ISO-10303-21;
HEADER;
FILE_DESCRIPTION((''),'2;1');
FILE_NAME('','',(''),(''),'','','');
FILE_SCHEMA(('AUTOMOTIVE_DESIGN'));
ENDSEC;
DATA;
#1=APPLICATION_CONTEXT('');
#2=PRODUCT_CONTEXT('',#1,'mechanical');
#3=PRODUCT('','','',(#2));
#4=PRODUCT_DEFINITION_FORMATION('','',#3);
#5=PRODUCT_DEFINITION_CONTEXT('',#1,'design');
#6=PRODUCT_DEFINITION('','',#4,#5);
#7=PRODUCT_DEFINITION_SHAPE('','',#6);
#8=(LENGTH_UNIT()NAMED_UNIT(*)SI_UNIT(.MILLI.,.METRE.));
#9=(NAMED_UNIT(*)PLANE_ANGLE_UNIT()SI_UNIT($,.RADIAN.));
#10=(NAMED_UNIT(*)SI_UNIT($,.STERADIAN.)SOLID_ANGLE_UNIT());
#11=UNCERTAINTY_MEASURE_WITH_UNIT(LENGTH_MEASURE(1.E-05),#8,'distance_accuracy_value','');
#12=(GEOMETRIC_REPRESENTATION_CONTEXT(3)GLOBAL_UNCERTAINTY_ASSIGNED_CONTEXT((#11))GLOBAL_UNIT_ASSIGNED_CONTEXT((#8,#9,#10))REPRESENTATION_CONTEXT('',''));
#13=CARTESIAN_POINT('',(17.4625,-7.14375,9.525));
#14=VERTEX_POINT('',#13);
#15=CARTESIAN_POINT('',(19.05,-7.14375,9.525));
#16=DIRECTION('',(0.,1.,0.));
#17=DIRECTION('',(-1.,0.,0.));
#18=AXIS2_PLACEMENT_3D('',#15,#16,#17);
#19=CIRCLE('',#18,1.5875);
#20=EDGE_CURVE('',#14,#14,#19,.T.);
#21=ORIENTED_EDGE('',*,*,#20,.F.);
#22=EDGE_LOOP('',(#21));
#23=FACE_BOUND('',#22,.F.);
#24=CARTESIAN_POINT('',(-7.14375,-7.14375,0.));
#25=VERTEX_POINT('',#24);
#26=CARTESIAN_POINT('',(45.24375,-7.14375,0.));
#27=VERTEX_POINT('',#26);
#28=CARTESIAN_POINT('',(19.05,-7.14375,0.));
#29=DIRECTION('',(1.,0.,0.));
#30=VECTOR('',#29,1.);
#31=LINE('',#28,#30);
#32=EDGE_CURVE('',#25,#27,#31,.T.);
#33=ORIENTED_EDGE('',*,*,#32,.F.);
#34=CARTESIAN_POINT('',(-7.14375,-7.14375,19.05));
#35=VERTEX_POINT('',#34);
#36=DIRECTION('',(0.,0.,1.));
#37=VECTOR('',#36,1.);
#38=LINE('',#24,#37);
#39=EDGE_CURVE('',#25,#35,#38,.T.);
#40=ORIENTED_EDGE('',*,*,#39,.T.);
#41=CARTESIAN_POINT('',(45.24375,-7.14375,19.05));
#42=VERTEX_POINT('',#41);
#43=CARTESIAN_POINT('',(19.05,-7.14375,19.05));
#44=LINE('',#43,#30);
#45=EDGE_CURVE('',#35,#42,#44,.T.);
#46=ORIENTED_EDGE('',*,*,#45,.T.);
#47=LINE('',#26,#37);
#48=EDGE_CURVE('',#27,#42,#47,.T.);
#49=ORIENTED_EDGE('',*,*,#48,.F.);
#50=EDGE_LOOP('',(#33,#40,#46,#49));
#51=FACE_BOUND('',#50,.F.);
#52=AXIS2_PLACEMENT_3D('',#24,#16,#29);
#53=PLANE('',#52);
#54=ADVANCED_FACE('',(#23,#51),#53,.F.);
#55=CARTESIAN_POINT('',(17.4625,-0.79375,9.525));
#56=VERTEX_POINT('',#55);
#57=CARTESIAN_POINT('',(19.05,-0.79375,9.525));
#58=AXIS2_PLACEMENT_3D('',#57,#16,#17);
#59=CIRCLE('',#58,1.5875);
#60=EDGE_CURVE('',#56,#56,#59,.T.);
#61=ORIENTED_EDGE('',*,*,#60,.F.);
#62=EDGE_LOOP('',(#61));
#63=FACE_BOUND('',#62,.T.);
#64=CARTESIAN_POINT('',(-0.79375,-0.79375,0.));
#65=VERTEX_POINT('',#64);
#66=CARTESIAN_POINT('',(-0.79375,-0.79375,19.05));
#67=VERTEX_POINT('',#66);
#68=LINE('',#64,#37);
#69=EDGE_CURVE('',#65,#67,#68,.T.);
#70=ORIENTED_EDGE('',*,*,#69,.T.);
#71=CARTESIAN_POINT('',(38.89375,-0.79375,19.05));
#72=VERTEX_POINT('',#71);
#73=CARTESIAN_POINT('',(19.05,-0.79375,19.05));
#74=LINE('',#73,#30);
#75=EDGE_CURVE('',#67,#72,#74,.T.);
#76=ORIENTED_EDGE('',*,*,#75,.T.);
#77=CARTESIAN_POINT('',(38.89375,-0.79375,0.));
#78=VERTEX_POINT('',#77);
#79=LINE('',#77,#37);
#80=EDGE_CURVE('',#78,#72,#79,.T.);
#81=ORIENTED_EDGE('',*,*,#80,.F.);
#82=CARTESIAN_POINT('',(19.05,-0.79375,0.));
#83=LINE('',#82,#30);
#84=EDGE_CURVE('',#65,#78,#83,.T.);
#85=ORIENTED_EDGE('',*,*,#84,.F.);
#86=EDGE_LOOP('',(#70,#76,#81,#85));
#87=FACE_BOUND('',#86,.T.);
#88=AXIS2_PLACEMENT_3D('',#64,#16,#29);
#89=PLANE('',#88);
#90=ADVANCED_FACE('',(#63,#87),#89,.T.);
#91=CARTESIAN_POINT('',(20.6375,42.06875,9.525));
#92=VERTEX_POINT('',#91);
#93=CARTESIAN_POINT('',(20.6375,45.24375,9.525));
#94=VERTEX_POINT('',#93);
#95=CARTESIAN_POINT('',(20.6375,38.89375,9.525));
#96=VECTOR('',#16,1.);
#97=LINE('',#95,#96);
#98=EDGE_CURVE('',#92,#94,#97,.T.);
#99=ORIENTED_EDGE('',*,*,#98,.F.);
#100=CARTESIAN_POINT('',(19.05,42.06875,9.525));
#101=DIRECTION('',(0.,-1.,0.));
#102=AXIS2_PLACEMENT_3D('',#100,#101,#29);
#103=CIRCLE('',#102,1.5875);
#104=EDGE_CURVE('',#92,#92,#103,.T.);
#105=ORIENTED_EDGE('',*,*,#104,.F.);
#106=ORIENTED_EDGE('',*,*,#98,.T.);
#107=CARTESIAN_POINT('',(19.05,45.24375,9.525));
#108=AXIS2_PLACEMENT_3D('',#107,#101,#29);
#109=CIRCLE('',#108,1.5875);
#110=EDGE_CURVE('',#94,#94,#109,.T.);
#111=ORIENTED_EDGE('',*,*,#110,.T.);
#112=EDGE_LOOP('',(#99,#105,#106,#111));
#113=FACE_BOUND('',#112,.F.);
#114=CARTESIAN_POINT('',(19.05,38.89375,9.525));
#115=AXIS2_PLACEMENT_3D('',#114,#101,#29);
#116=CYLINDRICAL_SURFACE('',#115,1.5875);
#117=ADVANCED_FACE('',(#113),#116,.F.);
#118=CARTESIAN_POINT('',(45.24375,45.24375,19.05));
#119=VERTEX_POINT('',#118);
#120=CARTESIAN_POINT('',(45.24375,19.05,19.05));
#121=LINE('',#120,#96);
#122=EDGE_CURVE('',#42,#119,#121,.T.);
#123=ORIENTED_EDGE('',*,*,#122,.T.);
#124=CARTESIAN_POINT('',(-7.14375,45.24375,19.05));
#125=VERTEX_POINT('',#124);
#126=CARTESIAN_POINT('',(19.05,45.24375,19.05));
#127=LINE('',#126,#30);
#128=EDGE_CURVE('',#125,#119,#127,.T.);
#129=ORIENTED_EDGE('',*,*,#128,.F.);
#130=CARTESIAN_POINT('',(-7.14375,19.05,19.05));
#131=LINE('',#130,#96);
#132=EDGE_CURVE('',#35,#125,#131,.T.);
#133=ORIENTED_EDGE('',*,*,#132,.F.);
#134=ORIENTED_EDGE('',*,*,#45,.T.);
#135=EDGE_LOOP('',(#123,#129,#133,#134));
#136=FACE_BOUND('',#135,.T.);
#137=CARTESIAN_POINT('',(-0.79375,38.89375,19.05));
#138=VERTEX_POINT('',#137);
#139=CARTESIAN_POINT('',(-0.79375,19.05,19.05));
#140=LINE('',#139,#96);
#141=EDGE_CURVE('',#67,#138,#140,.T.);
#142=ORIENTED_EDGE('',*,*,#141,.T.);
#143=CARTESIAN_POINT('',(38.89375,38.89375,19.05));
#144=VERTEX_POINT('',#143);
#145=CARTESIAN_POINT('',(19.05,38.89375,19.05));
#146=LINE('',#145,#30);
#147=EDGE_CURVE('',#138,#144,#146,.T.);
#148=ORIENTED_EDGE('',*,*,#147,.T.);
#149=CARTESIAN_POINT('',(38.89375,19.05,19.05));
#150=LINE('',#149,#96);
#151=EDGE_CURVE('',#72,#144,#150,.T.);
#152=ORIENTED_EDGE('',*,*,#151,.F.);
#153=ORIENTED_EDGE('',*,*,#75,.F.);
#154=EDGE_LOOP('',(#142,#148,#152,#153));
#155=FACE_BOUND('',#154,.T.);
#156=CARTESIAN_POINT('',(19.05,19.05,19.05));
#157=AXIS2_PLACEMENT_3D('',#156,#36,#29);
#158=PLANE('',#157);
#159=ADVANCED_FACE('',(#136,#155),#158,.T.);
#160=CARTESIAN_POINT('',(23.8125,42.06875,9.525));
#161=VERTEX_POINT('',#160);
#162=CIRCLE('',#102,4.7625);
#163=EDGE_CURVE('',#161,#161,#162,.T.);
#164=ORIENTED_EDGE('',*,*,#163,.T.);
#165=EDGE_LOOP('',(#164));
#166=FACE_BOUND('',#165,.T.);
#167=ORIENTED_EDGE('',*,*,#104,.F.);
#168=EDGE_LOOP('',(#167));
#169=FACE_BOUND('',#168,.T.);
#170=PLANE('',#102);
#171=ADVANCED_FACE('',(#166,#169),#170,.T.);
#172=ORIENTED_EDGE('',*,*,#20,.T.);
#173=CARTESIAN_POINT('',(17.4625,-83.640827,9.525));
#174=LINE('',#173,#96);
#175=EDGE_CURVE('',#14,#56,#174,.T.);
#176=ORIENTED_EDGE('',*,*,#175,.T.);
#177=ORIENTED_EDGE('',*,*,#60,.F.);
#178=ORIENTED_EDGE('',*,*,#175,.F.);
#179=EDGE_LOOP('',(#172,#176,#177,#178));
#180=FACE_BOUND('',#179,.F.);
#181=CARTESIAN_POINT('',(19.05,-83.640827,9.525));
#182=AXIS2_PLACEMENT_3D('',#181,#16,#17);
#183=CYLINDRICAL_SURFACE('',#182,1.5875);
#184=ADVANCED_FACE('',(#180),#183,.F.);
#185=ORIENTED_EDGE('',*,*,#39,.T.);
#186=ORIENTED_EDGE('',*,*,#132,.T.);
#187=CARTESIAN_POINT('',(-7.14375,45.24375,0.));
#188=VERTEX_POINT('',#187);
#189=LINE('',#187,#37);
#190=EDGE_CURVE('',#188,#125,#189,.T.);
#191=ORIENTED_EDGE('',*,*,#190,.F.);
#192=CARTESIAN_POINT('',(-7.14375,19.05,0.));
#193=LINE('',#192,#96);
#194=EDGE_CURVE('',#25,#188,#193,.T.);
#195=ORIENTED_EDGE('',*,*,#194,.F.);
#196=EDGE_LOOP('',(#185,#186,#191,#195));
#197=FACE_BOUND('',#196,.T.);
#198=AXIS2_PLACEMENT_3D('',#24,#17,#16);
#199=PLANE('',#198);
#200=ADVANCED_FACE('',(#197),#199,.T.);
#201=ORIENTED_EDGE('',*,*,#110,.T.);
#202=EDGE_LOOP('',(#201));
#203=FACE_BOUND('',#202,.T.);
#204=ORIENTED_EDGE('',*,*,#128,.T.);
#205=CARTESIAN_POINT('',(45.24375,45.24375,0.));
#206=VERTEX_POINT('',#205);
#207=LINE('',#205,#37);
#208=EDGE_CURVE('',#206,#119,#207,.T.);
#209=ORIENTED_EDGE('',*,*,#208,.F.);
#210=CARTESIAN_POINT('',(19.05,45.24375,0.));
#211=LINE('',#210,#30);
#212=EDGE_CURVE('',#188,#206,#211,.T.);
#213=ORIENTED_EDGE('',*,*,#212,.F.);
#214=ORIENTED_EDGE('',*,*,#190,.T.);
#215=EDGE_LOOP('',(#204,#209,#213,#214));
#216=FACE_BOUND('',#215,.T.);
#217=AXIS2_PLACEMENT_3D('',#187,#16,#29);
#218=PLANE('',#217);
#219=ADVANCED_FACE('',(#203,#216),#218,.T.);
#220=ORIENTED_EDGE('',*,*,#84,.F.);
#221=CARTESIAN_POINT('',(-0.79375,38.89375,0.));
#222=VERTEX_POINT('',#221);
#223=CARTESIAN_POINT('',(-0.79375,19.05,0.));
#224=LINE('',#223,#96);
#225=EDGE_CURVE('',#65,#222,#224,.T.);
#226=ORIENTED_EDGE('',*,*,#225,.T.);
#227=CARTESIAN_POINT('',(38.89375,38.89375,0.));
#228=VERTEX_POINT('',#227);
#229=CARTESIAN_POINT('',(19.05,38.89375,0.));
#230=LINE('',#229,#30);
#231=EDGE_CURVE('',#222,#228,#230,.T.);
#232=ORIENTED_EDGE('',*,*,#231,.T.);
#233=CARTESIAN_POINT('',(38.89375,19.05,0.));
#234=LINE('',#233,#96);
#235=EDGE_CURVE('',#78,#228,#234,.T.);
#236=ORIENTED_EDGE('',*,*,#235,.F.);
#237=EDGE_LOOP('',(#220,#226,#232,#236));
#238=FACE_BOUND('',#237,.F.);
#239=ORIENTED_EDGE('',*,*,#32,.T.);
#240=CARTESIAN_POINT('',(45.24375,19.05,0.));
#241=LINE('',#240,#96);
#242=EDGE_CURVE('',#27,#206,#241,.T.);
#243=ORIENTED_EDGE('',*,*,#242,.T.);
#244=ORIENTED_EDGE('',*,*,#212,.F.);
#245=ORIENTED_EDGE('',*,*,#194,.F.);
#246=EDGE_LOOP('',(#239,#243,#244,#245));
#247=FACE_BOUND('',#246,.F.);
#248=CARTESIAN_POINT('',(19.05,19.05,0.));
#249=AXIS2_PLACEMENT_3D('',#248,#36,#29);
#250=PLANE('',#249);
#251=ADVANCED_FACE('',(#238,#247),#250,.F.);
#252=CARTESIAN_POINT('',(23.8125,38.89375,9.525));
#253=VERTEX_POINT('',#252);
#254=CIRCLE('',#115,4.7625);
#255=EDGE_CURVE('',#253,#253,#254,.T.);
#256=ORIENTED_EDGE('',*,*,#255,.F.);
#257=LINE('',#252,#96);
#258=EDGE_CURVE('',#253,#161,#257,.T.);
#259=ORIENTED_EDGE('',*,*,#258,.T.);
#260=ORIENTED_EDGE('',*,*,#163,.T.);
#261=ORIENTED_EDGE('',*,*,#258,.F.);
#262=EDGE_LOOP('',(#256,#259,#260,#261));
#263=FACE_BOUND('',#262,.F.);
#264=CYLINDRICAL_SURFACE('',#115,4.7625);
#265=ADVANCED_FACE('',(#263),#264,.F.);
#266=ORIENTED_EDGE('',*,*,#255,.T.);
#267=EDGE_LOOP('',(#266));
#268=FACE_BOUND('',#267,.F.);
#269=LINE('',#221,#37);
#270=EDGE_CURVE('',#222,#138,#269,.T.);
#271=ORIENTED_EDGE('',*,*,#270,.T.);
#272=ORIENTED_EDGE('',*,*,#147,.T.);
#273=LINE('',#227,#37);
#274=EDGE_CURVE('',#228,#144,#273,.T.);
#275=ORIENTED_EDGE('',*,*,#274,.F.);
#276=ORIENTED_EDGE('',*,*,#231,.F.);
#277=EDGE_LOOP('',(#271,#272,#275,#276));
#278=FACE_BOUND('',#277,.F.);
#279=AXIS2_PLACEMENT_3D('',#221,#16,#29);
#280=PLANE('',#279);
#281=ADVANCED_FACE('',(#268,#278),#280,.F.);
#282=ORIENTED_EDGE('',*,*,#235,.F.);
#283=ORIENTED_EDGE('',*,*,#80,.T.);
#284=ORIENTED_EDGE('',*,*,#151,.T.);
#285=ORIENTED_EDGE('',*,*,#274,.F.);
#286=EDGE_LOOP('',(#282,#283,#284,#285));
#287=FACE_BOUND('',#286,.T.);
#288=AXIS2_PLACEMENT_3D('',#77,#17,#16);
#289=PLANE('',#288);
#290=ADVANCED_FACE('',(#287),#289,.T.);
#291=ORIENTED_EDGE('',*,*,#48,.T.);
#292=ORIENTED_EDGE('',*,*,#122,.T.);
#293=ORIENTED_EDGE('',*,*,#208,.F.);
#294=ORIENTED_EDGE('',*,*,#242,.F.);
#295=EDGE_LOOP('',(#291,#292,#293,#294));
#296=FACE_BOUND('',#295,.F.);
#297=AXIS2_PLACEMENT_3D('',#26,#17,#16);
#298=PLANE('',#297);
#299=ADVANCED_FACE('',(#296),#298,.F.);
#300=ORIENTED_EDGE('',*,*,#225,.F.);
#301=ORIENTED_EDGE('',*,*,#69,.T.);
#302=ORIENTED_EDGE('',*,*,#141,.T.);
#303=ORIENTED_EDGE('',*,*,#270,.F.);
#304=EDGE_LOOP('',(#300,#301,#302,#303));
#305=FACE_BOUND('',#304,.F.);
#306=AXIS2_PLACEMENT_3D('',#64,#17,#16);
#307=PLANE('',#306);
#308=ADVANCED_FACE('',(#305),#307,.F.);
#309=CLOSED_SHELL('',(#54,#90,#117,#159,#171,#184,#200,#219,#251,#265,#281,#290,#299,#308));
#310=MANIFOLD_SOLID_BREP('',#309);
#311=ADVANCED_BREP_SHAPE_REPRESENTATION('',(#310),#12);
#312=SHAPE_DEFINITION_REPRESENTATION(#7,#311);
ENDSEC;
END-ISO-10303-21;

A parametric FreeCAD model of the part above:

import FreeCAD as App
import Part
import Sketcher
Q = App.Units.Quantity


def add_polygon(sketch, points):
    """Adds a closed chain of lines whose ends are joined by coincident constraints."""
    first, n = sketch.GeometryCount, len(points)
    for a, b in zip(points, points[1:] + points[:1]):
        sketch.addGeometry(Part.LineSegment(App.Vector(*a, 0), App.Vector(*b, 0)), False)
    for i in range(n):
        sketch.addConstraint(Sketcher.Constraint("Coincident", first + i, 2, first + (i + 1) % n, 1))

doc = App.newDocument("Part")
body = doc.addObject("PartDesign::Body", "Body")

# Sketch on XY plane
sketch1 = doc.addObject("Sketcher::SketchObject", "Sketch")
body.addObject(sketch1)
sketch1.AttachmentSupport = (doc.XY_Plane, [""])
sketch1.MapMode = "FlatFace"
add_polygon(sketch1, [(-7, 45), (-7, -7), (45, -7), (45, 45)])  # lines 0-3
add_polygon(sketch1, [(39, -1), (-1, -1), (-1, 39), (39, 39)])  # lines 4-7
sketch1.addConstraint([
    Sketcher.Constraint("Vertical", 0),
    Sketcher.Constraint("Horizontal", 1),
    Sketcher.Constraint("Vertical", 2),
    Sketcher.Constraint("Horizontal", 3),
    Sketcher.Constraint("Horizontal", 4),
    Sketcher.Constraint("Vertical", 5),
    Sketcher.Constraint("Horizontal", 6),
    Sketcher.Constraint("Vertical", 7),
    Sketcher.Constraint("Equal", 3, 0),
    Sketcher.Constraint("Equal", 6, 5),
    Sketcher.Constraint("DistanceX", 1, 1, 1, 2, Q("2.0625 in")),
    Sketcher.Constraint("DistanceX", 4, 2, 4, 1, Q("1.5625 in")),
    Sketcher.Constraint("DistanceX", 0, 2, 4, 2, Q("0.25 in")),
    Sketcher.Constraint("DistanceY", 0, 2, 4, 2, Q("0.25 in")),
    Sketcher.Constraint("DistanceX", 0, 2, -1, 1, Q("0.28125 in")),
    Sketcher.Constraint("DistanceY", 0, 2, -1, 1, Q("0.28125 in")),
])
pad1 = doc.addObject("PartDesign::Pad", "Pad")
body.addObject(pad1)
pad1.Profile = sketch1
pad1.Length = Q("0.75 in")

# Sketch on XZ plane
sketch2 = doc.addObject("Sketcher::SketchObject", "Sketch001")
body.addObject(sketch2)
sketch2.AttachmentSupport = (doc.XZ_Plane, [""])
sketch2.MapMode = "FlatFace"
sketch2.AttachmentOffset = App.Placement(App.Vector(0, 0, -1.53125 * 25.4), App.Rotation())
sketch2.addGeometry(Part.Circle(App.Vector(19.1, 9.5, 0), App.Vector(0, 0, 1), 1.6), False)
sketch2.addConstraint([
    Sketcher.Constraint("Diameter", 0, Q("0.125 in")),
    Sketcher.Constraint("DistanceX", -1, 1, 0, 3, Q("0.75 in")),
    Sketcher.Constraint("DistanceY", -1, 1, 0, 3, Q("0.375 in")),
])
pocket1 = doc.addObject("PartDesign::Pocket", "Pocket")
body.addObject(pocket1)
pocket1.Profile = sketch2
pocket1.Length = Q("1 in")

# Sketch on XZ plane
sketch3 = doc.addObject("Sketcher::SketchObject", "Sketch002")
body.addObject(sketch3)
sketch3.AttachmentSupport = (doc.XZ_Plane, [""])
sketch3.MapMode = "FlatFace"
sketch3.AttachmentOffset = App.Placement(App.Vector(0, 0, -1.53125 * 25.4), App.Rotation())
sketch3.addGeometry([
    Part.Circle(App.Vector(19.1, 9.5, 0), App.Vector(0, 0, 1), 4.8),
    Part.Circle(App.Vector(19.1, 9.5, 0), App.Vector(0, 0, 1), 1.6),
], False)
sketch3.addConstraint([
    Sketcher.Constraint("Coincident", 1, 3, 0, 3),
    Sketcher.Constraint("Diameter", 0, Q("0.375 in")),
    Sketcher.Constraint("Diameter", 1, Q("0.125 in")),
    Sketcher.Constraint("DistanceX", -1, 1, 0, 3, Q("0.75 in")),
    Sketcher.Constraint("DistanceY", -1, 1, 0, 3, Q("0.375 in")),
])
pocket2 = doc.addObject("PartDesign::Pocket", "Pocket001")
body.addObject(pocket2)
pocket2.Profile = sketch3
pocket2.Length = Q("0.125 in")

# Sketch on XZ plane
sketch4 = doc.addObject("Sketcher::SketchObject", "Sketch003")
body.addObject(sketch4)
sketch4.AttachmentSupport = (doc.XZ_Plane, [""])
sketch4.MapMode = "FlatFace"
sketch4.AttachmentOffset = App.Placement(App.Vector(0, 0, 0.28125 * 25.4), App.Rotation())
sketch4.addGeometry(Part.Circle(App.Vector(19.1, 9.5, 0), App.Vector(0, 0, 1), 1.6), False)
sketch4.addConstraint([
    Sketcher.Constraint("Diameter", 0, Q("0.125 in")),
    Sketcher.Constraint("DistanceX", -1, 1, 0, 3, Q("0.75 in")),
    Sketcher.Constraint("DistanceY", -1, 1, 0, 3, Q("0.375 in")),
])
doc.recompute()
hole = doc.addObject("PartDesign::Hole", "Hole")
body.addObject(hole)
hole.Profile = sketch4
hole.ThreadType = "None"
hole.Diameter = Q("0.125 in")
hole.DepthType = "ThroughAll"

doc.recompute()
